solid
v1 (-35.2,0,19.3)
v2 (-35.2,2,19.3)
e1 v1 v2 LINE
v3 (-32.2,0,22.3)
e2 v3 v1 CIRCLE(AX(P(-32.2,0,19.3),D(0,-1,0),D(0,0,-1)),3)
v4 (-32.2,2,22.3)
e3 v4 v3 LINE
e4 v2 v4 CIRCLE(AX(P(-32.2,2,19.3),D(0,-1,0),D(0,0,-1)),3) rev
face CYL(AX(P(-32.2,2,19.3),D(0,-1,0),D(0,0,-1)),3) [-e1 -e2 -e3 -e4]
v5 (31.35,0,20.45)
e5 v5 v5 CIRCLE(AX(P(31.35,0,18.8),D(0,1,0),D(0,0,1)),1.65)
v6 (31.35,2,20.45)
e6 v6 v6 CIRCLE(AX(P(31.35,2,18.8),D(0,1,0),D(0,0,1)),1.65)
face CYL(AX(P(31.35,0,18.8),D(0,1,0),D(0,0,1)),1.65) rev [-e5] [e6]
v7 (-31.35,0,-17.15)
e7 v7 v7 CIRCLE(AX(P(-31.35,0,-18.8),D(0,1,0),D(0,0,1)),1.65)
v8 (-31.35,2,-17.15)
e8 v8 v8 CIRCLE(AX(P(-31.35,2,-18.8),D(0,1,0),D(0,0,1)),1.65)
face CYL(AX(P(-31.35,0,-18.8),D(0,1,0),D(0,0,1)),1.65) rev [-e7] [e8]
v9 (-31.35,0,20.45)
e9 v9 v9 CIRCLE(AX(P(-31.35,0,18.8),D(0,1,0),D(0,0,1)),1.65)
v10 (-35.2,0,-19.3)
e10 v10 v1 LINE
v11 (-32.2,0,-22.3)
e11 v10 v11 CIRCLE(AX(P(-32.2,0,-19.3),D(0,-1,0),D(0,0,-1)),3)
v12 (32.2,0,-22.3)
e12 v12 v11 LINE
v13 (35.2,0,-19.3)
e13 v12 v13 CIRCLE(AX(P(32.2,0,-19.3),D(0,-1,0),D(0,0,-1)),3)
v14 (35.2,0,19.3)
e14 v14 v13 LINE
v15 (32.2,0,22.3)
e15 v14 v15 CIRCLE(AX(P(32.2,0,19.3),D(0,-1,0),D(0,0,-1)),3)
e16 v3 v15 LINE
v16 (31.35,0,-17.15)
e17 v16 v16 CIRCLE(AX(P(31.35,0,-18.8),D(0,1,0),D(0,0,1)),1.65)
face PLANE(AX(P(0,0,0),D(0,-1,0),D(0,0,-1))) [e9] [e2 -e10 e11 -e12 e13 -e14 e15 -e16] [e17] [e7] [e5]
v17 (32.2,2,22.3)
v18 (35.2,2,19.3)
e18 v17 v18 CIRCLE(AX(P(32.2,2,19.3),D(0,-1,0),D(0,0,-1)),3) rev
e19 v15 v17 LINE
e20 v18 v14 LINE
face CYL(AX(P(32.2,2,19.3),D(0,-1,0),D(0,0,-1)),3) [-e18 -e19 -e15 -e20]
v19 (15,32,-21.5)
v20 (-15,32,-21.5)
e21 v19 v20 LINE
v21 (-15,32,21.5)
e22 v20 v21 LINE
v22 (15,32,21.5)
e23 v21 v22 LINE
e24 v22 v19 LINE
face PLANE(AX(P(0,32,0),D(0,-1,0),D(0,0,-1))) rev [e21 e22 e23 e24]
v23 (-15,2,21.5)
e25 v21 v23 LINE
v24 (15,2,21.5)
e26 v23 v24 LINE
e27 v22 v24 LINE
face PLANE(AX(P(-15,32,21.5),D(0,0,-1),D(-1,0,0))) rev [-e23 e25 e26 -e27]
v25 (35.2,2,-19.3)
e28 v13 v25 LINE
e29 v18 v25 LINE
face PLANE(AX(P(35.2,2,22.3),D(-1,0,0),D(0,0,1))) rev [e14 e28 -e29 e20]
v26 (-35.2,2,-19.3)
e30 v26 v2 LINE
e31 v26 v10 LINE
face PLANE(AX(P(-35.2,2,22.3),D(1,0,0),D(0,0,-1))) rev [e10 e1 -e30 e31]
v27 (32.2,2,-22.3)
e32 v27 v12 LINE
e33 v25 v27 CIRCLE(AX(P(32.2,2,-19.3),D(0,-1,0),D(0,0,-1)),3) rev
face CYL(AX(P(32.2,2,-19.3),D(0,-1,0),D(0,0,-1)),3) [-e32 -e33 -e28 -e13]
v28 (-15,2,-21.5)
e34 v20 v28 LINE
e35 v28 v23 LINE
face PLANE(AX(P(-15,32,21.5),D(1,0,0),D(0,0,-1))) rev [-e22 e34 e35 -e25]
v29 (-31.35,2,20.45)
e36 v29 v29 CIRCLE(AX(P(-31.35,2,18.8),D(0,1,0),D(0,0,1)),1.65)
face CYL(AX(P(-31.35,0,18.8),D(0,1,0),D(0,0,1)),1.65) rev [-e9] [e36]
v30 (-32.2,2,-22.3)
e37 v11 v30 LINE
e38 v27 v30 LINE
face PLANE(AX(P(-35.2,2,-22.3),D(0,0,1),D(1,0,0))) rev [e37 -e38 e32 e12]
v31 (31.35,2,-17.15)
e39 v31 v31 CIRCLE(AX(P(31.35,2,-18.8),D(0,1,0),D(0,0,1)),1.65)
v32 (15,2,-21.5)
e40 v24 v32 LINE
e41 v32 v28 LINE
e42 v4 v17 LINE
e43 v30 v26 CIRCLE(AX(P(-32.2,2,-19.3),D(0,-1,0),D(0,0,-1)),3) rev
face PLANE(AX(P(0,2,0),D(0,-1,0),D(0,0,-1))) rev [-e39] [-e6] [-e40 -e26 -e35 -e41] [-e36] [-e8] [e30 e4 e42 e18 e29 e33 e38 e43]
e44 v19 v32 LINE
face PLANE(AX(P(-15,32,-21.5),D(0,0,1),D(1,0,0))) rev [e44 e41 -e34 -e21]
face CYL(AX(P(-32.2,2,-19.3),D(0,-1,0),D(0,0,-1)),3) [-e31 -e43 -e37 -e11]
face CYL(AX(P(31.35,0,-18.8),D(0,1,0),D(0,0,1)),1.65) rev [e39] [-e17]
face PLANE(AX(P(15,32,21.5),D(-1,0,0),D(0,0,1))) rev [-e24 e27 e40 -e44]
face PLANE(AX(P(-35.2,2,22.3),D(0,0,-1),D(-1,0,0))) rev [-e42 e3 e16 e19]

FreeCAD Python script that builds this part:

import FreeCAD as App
import Part
import Sketcher


def edges_at(feature, points):
    """Names of the edges that pass closest to the given points."""
    edges = feature.Shape.Edges
    near = lambda p: min(range(len(edges)), key=lambda i: edges[i].distToShape(Part.Vertex(*p))[0])
    return sorted({f"Edge{near(p) + 1}" for p in points})


def add_polygon(sketch, points):
    """Adds a closed chain of lines whose ends are joined by coincident constraints."""
    first, n = sketch.GeometryCount, len(points)
    for a, b in zip(points, points[1:] + points[:1]):
        sketch.addGeometry(Part.LineSegment(App.Vector(*a, 0), App.Vector(*b, 0)), False)
    for i in range(n):
        sketch.addConstraint(Sketcher.Constraint("Coincident", first + i, 2, first + (i + 1) % n, 1))

doc = App.newDocument("Part")
params = doc.addObject("Spreadsheet::Sheet", "Params")
for row, (alias, value) in enumerate([
    ("sketch1_width", "70.4 mm"),
    ("sketch1_height", "44.6 mm"),
    ("pad1_length", "2 mm"),
    ("sketch2_diameter", "3.3 mm"),
    ("fillet_radius", "3 mm"),
    ("sketch3_width", "30 mm"),
    ("sketch3_height", "43 mm"),
    ("pad2_length", "30 mm"),
], start=1):
    params.set(f"A{row}", alias)
    params.set(f"B{row}", "=" + value)
    params.setAlias(f"B{row}", alias)

body = doc.addObject("PartDesign::Body", "Body")

# Sketch on XZ plane
sketch1 = body.newObject("Sketcher::SketchObject", "Sketch")
sketch1.AttachmentSupport = (doc.getObject("XZ_Plane"), [""])
sketch1.MapMode = "FlatFace"
add_polygon(sketch1, [(-35, -22), (-35, 22), (35, 22), (35, -22)])  # lines 0-3
sketch1.addConstraint([
    Sketcher.Constraint("Vertical", 0),
    Sketcher.Constraint("Horizontal", 1),
    Sketcher.Constraint("Vertical", 2),
    Sketcher.Constraint("Horizontal", 3),
    Sketcher.Constraint("Symmetric", 0, 2, 2, 2, -1, 1),
    Sketcher.Constraint("DistanceX", 1, 1, 1, 2, 70.4),
    Sketcher.Constraint("DistanceY", 0, 1, 0, 2, 44.6),
])
sketch1.setExpression("Constraints[9]", "Params.sketch1_width")
sketch1.setExpression("Constraints[10]", "Params.sketch1_height")
pad1 = body.newObject("PartDesign::Pad", "Pad")
pad1.Profile = sketch1
pad1.setExpression("Length", "Params.pad1_length")
pad1.Reversed = True

# Sketch on XZ plane
sketch2 = body.newObject("Sketcher::SketchObject", "Sketch001")
sketch2.AttachmentSupport = (doc.getObject("XZ_Plane"), [""])
sketch2.MapMode = "FlatFace"
sketch2.AttachmentOffset = App.Placement(App.Vector(0, 0, -2), App.Rotation())
sketch2.addGeometry([
    Part.Circle(App.Vector(-31.4, -18.8, 0), App.Vector(0, 0, 1), 1.6),
    Part.Circle(App.Vector(31.4, -18.8, 0), App.Vector(0, 0, 1), 1.6),
    Part.Circle(App.Vector(31.4, 18.8, 0), App.Vector(0, 0, 1), 1.6),
    Part.Circle(App.Vector(-31.4, 18.8, 0), App.Vector(0, 0, 1), 1.6),
], False)
sketch2.addConstraint([
    Sketcher.Constraint("Equal", 0, 1),
    Sketcher.Constraint("Equal", 1, 2),
    Sketcher.Constraint("Equal", 2, 3),
    Sketcher.Constraint("Symmetric", 0, 3, 2, 3, -1, 1),
    Sketcher.Constraint("Symmetric", 1, 3, 3, 3, -1, 1),
    Sketcher.Constraint("Symmetric", 0, 3, 1, 3, -2),
    Sketcher.Constraint("Diameter", 0, 3.3),
    Sketcher.Constraint("DistanceY", 0, 3, -1, 1, 18.8),
    Sketcher.Constraint("DistanceX", 0, 3, 1, 3, 62.7),
])
sketch2.setExpression("Constraints[6]", "Params.sketch2_diameter")
pocket1 = body.newObject("PartDesign::Pocket", "Pocket")
pocket1.Profile = sketch2
pocket1.Type = "ThroughAll"
pocket1.Reversed = True
doc.recompute()

fillet = body.newObject("PartDesign::Fillet", "Fillet")
fillet.Base = (pocket1, edges_at(pocket1, [
    (35.2, 1, 22.3),
    (-35.2, 1, 22.3),
    (-35.2, 1, -22.3),
    (35.2, 1, -22.3),
]))
fillet.setExpression("Radius", "Params.fillet_radius")

# Sketch on XZ plane
sketch3 = body.newObject("Sketcher::SketchObject", "Sketch002")
sketch3.AttachmentSupport = (doc.getObject("XZ_Plane"), [""])
sketch3.MapMode = "FlatFace"
sketch3.AttachmentOffset = App.Placement(App.Vector(0, 0, -2), App.Rotation())
add_polygon(sketch3, [(-15, -22), (-15, 22), (15, 22), (15, -22)])  # lines 0-3
sketch3.addConstraint([
    Sketcher.Constraint("Vertical", 0),
    Sketcher.Constraint("Horizontal", 1),
    Sketcher.Constraint("Vertical", 2),
    Sketcher.Constraint("Horizontal", 3),
    Sketcher.Constraint("Symmetric", 0, 2, 2, 2, -1, 1),
    Sketcher.Constraint("DistanceX", 1, 1, 1, 2, 30.0),
    Sketcher.Constraint("DistanceY", 0, 1, 0, 2, 43.0),
])
sketch3.setExpression("Constraints[9]", "Params.sketch3_width")
sketch3.setExpression("Constraints[10]", "Params.sketch3_height")
pad2 = body.newObject("PartDesign::Pad", "Pad001")
pad2.Profile = sketch3
pad2.setExpression("Length", "Params.pad2_length")
pad2.Reversed = True

doc.recompute()
